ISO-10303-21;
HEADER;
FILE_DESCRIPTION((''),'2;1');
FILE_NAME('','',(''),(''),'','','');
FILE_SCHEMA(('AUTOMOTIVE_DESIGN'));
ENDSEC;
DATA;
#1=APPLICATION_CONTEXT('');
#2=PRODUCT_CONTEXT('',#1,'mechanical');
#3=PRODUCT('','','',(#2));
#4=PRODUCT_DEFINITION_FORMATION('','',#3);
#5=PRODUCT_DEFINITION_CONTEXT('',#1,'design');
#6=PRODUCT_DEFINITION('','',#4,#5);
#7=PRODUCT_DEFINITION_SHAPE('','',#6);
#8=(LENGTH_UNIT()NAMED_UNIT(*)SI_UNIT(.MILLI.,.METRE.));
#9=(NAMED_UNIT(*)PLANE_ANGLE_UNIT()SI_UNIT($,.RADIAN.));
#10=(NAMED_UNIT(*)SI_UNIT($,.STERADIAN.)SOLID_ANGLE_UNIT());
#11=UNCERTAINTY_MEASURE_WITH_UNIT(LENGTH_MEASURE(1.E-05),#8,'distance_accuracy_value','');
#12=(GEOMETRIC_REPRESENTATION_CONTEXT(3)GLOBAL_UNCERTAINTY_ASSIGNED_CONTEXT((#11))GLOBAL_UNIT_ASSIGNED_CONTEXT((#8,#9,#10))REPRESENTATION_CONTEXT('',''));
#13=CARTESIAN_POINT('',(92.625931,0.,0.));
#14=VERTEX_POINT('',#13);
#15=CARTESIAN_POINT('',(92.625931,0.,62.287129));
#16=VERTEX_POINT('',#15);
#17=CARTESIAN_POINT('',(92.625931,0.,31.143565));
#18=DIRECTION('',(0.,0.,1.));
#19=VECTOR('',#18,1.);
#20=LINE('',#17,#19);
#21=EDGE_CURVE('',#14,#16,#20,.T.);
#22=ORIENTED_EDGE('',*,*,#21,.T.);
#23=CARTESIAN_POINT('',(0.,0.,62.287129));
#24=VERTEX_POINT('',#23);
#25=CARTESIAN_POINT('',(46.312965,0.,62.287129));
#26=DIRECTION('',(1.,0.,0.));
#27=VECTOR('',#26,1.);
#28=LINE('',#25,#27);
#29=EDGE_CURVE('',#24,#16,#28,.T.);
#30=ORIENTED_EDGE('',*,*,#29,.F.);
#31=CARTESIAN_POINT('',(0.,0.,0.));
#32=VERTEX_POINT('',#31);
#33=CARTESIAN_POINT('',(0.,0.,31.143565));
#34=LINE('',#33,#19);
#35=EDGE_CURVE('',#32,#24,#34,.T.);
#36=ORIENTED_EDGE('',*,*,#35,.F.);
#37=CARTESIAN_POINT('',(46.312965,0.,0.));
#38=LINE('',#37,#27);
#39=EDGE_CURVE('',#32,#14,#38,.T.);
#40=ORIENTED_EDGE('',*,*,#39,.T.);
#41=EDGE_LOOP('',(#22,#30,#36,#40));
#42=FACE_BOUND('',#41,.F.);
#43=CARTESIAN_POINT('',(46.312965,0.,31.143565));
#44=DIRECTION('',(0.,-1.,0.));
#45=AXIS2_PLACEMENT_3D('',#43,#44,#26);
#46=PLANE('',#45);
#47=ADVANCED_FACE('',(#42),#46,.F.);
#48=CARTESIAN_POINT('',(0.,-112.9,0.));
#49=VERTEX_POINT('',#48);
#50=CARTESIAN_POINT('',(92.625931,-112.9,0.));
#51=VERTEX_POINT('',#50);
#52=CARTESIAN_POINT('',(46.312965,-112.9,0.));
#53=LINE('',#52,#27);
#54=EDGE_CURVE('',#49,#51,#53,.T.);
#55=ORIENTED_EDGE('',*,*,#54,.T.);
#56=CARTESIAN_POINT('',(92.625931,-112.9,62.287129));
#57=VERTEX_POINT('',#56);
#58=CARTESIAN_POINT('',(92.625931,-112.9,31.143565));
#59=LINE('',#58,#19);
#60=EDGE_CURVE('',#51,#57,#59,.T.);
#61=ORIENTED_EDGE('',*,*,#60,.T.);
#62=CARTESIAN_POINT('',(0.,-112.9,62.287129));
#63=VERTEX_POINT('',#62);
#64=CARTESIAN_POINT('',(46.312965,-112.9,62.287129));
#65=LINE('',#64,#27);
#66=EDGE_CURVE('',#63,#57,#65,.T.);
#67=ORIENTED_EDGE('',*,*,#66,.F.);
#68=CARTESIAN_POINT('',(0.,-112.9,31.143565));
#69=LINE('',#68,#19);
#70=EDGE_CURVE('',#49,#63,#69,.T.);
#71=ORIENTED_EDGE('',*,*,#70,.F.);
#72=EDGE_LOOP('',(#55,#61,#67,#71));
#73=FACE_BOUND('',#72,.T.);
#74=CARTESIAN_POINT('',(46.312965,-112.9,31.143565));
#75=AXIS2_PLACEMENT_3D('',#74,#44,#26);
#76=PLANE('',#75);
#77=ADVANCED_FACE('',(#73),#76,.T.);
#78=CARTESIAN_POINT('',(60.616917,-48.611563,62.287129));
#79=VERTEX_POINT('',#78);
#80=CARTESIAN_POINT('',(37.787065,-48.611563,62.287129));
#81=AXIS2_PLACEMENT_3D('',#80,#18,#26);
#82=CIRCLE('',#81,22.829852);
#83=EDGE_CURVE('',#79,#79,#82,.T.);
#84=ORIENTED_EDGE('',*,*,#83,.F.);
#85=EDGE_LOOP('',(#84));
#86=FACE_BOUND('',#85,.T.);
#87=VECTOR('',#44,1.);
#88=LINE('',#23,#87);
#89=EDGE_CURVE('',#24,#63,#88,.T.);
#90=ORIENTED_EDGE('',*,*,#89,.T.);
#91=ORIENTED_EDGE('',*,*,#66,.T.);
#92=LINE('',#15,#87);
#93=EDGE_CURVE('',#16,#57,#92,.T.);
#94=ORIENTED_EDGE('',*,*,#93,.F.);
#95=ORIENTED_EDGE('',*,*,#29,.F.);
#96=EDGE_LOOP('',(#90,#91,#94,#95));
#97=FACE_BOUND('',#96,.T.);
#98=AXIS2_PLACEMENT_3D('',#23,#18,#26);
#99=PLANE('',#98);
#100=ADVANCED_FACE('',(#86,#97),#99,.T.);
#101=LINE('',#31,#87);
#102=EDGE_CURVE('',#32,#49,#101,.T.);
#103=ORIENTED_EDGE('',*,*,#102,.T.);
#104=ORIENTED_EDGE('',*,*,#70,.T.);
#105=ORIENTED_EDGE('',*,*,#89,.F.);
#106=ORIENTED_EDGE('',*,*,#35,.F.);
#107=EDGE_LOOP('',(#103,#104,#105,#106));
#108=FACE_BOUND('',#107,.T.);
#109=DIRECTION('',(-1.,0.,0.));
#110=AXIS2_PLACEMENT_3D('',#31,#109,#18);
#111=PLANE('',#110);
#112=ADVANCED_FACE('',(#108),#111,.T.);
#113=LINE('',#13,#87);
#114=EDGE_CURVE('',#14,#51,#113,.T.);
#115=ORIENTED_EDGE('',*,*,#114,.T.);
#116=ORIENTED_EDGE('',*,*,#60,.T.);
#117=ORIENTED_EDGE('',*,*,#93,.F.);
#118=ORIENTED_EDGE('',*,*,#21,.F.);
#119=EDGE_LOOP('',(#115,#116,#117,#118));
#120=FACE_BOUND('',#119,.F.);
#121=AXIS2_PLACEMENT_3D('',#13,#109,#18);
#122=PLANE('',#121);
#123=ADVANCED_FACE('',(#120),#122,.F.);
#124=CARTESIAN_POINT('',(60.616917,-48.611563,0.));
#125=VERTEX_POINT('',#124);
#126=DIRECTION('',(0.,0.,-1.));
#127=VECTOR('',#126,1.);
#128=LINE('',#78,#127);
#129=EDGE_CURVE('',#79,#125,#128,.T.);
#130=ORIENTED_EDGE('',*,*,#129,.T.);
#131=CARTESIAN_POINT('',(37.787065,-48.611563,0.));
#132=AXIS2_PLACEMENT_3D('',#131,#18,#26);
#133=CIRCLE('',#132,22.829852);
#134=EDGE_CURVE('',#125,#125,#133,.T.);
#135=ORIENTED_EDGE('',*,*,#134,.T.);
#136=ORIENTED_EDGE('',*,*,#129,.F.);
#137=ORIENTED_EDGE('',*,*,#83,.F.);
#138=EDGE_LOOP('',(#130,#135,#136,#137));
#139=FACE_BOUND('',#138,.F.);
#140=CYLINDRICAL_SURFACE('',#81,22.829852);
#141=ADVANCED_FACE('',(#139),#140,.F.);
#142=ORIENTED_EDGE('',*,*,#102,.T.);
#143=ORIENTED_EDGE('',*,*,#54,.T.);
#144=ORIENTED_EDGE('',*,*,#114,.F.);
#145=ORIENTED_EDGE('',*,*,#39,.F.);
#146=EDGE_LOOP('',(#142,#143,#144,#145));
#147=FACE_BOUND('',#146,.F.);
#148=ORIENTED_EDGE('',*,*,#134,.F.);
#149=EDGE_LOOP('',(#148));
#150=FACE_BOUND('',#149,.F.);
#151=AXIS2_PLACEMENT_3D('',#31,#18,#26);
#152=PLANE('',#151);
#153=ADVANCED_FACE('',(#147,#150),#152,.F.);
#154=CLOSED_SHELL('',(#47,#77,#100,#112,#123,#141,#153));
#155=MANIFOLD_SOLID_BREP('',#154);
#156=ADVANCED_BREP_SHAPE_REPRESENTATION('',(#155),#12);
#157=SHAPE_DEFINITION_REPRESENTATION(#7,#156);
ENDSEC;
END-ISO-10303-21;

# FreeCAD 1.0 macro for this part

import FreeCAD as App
import Part
import Sketcher
from FreeCAD import Vector

doc = App.newDocument("Part")
body = doc.addObject("PartDesign::Body", "Body")

sketch1 = body.newObject("Sketcher::SketchObject", "Sketch")
sketch1.AttachmentSupport = (doc.getObject("XZ_Plane"), [""])
sketch1.MapMode = "FlatFace"
sketch1.addGeometry([
    Part.LineSegment(Vector(0, 62.287129, 0), Vector(0, 0, 0)),
    Part.LineSegment(Vector(0, 0, 0), Vector(92.625931, 0, 0)),
    Part.LineSegment(Vector(92.625931, 0, 0), Vector(92.625931, 62.287129, 0)),
    Part.LineSegment(Vector(92.625931, 62.287129, 0), Vector(0, 62.287129, 0)),
], False)
sketch1.addConstraint([
    Sketcher.Constraint("Coincident", 0, 2, 1, 1),
    Sketcher.Constraint("Coincident", 1, 2, 2, 1),
    Sketcher.Constraint("Coincident", 2, 2, 3, 1),
    Sketcher.Constraint("Coincident", 3, 2, 0, 1),
    Sketcher.Constraint("Vertical", 0),
    Sketcher.Constraint("Horizontal", 1),
    Sketcher.Constraint("Vertical", 2),
    Sketcher.Constraint("Horizontal", 3),
    Sketcher.Constraint("Coincident", 0, 2, -1, 1),
    Sketcher.Constraint("DistanceX", 1, 1, 1, 2, 92.625931),
    Sketcher.Constraint("DistanceY", 0, 2, 0, 1, 62.287129),
])
pad1 = body.newObject("PartDesign::Pad", "Pad")
pad1.Profile = sketch1
pad1.Length = 112.9

sketch2 = body.newObject("Sketcher::SketchObject", "Sketch001")
sketch2.AttachmentSupport = (doc.getObject("XY_Plane"), [""])
sketch2.MapMode = "FlatFace"
sketch2.AttachmentOffset = App.Placement(Vector(0, 0, 62.287129), App.Rotation())
sketch2.addGeometry(Part.Circle(Vector(37.787065, -48.611563, 0), Vector(0, 0, 1), 22.829852), False)
sketch2.addConstraint([
    Sketcher.Constraint("Diameter", 0, 45.659705),
    Sketcher.Constraint("DistanceX", -1, 1, 0, 3, 37.787065),
    Sketcher.Constraint("DistanceY", 0, 3, -1, 1, 48.611563),
])
pocket1 = body.newObject("PartDesign::Pocket", "Pocket")
pocket1.Profile = sketch2
pocket1.Length = 124.5

doc.recompute()
